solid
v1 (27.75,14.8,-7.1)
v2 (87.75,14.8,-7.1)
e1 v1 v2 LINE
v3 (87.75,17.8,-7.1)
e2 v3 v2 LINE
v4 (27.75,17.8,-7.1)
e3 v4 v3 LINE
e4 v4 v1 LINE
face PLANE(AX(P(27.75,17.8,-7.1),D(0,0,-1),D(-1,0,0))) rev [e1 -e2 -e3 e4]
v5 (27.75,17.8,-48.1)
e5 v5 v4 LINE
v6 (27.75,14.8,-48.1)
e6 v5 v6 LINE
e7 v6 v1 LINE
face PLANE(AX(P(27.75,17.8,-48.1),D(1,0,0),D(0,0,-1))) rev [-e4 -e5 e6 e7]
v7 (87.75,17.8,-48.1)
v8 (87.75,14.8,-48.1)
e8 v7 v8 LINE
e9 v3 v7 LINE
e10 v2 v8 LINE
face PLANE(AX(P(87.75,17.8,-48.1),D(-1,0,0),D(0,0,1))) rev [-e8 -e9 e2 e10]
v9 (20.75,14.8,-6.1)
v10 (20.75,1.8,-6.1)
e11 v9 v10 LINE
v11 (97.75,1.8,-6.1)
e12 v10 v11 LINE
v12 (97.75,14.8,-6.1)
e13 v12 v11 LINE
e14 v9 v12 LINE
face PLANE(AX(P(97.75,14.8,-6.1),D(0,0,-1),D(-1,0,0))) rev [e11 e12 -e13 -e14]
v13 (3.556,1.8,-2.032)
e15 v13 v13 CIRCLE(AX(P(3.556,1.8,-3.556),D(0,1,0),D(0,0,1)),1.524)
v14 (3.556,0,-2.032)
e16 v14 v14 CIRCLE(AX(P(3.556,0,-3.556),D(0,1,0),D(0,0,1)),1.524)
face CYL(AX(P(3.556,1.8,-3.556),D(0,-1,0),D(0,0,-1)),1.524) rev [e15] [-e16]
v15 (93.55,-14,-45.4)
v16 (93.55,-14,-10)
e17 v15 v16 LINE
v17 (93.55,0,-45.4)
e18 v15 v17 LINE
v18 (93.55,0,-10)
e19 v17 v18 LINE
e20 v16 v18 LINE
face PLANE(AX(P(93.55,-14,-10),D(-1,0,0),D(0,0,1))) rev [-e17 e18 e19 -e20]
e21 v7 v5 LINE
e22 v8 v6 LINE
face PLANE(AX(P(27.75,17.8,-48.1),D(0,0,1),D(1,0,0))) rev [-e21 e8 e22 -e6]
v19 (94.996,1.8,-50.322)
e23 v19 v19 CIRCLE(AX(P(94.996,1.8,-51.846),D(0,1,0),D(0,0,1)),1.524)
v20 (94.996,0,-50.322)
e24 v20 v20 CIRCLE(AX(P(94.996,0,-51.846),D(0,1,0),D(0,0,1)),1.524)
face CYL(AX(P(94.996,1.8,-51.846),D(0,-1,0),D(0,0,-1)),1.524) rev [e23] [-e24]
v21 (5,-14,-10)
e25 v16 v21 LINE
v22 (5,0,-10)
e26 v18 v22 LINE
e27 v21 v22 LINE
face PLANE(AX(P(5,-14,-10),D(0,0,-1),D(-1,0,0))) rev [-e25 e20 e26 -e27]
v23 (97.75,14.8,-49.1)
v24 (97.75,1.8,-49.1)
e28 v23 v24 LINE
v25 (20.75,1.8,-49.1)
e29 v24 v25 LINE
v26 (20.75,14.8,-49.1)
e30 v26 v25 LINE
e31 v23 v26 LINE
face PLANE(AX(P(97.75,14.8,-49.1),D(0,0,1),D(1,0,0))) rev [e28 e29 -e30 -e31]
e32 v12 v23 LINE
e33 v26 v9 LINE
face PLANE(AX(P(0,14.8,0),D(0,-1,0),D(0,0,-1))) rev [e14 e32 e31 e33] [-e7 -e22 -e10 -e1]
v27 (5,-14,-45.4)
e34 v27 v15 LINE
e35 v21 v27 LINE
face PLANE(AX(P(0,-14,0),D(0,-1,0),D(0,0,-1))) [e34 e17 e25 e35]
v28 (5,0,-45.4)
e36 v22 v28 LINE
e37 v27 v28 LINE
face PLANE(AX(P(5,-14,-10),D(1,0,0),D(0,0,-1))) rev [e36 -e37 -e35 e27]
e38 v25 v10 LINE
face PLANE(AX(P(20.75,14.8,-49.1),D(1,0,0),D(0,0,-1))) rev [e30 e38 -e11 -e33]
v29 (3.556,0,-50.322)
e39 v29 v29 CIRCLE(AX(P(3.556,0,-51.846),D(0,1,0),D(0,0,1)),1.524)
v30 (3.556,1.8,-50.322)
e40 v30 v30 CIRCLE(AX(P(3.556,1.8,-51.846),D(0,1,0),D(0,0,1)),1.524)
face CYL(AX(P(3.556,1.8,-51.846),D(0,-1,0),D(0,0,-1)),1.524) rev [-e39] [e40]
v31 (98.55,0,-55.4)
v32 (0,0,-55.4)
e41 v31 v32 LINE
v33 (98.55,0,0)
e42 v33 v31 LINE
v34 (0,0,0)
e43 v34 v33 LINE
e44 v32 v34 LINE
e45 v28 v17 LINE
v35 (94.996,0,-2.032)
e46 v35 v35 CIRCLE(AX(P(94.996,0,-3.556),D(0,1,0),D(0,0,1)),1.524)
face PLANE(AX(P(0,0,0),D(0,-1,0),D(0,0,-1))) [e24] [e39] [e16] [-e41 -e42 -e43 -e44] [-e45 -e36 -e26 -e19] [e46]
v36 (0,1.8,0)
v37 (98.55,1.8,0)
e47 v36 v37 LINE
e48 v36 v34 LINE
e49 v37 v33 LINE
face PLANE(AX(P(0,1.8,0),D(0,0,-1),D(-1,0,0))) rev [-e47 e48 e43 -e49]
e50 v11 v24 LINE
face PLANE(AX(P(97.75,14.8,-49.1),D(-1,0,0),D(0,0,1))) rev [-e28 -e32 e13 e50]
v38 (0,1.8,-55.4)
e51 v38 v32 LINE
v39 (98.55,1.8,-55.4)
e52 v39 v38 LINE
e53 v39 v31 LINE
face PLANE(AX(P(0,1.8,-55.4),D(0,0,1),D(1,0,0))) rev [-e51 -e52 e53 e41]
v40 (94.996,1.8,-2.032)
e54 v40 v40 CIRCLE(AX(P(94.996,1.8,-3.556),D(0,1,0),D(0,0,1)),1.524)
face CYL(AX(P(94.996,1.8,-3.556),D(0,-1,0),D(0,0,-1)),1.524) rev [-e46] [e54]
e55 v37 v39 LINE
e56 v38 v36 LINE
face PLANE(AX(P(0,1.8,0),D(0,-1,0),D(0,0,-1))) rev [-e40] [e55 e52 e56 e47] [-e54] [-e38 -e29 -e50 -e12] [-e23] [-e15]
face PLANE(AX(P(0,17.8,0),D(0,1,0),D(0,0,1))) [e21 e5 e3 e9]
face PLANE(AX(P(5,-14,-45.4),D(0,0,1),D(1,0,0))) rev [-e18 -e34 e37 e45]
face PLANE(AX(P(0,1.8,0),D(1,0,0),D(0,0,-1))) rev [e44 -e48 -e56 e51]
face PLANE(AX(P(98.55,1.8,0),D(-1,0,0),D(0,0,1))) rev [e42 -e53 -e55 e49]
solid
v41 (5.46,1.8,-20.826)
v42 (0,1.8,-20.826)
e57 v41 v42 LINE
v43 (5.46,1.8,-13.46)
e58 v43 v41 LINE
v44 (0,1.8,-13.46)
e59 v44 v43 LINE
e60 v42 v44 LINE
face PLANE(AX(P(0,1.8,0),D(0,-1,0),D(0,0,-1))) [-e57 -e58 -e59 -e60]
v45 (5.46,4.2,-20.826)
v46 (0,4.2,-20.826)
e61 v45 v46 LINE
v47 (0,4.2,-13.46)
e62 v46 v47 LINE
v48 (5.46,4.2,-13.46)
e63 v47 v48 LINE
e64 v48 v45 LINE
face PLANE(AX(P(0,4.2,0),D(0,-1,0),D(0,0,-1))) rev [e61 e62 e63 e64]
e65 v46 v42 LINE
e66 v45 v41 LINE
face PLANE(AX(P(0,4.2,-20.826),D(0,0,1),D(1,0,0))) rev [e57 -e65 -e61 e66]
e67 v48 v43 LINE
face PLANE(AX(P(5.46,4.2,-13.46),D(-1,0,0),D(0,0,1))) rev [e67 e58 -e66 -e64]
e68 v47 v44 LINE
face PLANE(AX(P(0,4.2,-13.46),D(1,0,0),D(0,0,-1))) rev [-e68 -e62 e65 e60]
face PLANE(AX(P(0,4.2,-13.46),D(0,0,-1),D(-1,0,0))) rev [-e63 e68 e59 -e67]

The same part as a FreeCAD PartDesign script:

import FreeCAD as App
import Part
import Sketcher


def add_polygon(sketch, points):
    """Adds a closed chain of lines whose ends are joined by coincident constraints."""
    first, n = sketch.GeometryCount, len(points)
    for a, b in zip(points, points[1:] + points[:1]):
        sketch.addGeometry(Part.LineSegment(App.Vector(*a, 0), App.Vector(*b, 0)), False)
    for i in range(n):
        sketch.addConstraint(Sketcher.Constraint("Coincident", first + i, 2, first + (i + 1) % n, 1))

doc = App.newDocument("Part")
body = doc.addObject("PartDesign::Body", "Body")

sketch1 = doc.addObject("Sketcher::SketchObject", "Sketch")
body.addObject(sketch1)
sketch1.AttachmentSupport = (doc.XZ_Plane, [""])
sketch1.MapMode = "FlatFace"
add_polygon(sketch1, [(0, -55.4), (0, 0), (98.5, 0), (98.5, -55.4)])
sketch1.addGeometry(Part.Circle(App.Vector(3.6, -3.6, 0), App.Vector(0, 0, 1), 1.5), False)
sketch1.addGeometry(Part.Circle(App.Vector(95, -3.6, 0), App.Vector(0, 0, 1), 1.5), False)
sketch1.addGeometry(Part.Circle(App.Vector(3.6, -51.8, 0), App.Vector(0, 0, 1), 1.5), False)
sketch1.addGeometry(Part.Circle(App.Vector(95, -51.8, 0), App.Vector(0, 0, 1), 1.5), False)
sketch1.addConstraint([
    Sketcher.Constraint("Vertical", 0),
    Sketcher.Constraint("Horizontal", 1),
    Sketcher.Constraint("Vertical", 2),
    Sketcher.Constraint("Horizontal", 3),
    Sketcher.Constraint("Coincident", 0, 2, -1, 1),
    Sketcher.Constraint("Equal", 4, 5),
    Sketcher.Constraint("Equal", 5, 6),
    Sketcher.Constraint("Equal", 6, 7),
    Sketcher.Constraint("Horizontal", 4, 3, 5, 3),
    Sketcher.Constraint("Horizontal", 6, 3, 7, 3),
    Sketcher.Constraint("Vertical", 4, 3, 6, 3),
    Sketcher.Constraint("Vertical", 5, 3, 7, 3),
    Sketcher.Constraint("Diameter", 4, 3.048),
    Sketcher.Constraint("DistanceY", 0, 1, 0, 2, 55.4),
    Sketcher.Constraint("DistanceX", 1, 1, 1, 2, 98.55),
    Sketcher.Constraint("DistanceX", 4, 3, 5, 3, 91.44),
    Sketcher.Constraint("DistanceY", 6, 3, 4, 3, 48.29),
    Sketcher.Constraint("DistanceX", -1, 1, 4, 3, 3.556),
    Sketcher.Constraint("DistanceY", 4, 3, -1, 1, 3.556),
])
pad1 = doc.addObject("PartDesign::Pad", "Pad")
body.addObject(pad1)
pad1.Profile = sketch1
pad1.Length = 1.8
pad1.Reversed = True

sketch2 = doc.addObject("Sketcher::SketchObject", "Sketch001")
body.addObject(sketch2)
sketch2.AttachmentSupport = (doc.XZ_Plane, [""])
sketch2.MapMode = "FlatFace"
sketch2.AttachmentOffset = App.Placement(App.Vector(0, 0, -1.8), App.Rotation())
add_polygon(sketch2, [(21, -49), (21, -6), (98, -6), (98, -49)])
sketch2.addConstraint([
    Sketcher.Constraint("Vertical", 0),
    Sketcher.Constraint("Horizontal", 1),
    Sketcher.Constraint("Vertical", 2),
    Sketcher.Constraint("Horizontal", 3),
    Sketcher.Constraint("DistanceX", 1, 1, 1, 2, 77.0),
    Sketcher.Constraint("DistanceY", 0, 1, 0, 2, 43.0),
    Sketcher.Constraint("DistanceY", 0, 2, -1, 1, 6.1),
    Sketcher.Constraint("DistanceX", -1, 1, 0, 2, 20.75),
])
pad2 = doc.addObject("PartDesign::Pad", "Pad001")
body.addObject(pad2)
pad2.Profile = sketch2
pad2.Length = 13
pad2.Reversed = True

sketch3 = doc.addObject("Sketcher::SketchObject", "Sketch002")
body.addObject(sketch3)
sketch3.AttachmentSupport = (doc.XZ_Plane, [""])
sketch3.MapMode = "FlatFace"
sketch3.AttachmentOffset = App.Placement(App.Vector(0, 0, -14.8), App.Rotation())
add_polygon(sketch3, [(28, -48), (28, -7), (88, -7), (88, -48)])
sketch3.addConstraint([
    Sketcher.Constraint("Vertical", 0),
    Sketcher.Constraint("Horizontal", 1),
    Sketcher.Constraint("Vertical", 2),
    Sketcher.Constraint("Horizontal", 3),
    Sketcher.Constraint("DistanceX", 1, 1, 1, 2, 60.0),
    Sketcher.Constraint("DistanceY", 0, 1, 0, 2, 41.0),
    Sketcher.Constraint("DistanceY", 0, 2, -1, 1, 7.1),
    Sketcher.Constraint("DistanceX", -1, 1, 0, 2, 27.75),
])
pad3 = doc.addObject("PartDesign::Pad", "Pad002")
body.addObject(pad3)
pad3.Profile = sketch3
pad3.Length = 3
pad3.Reversed = True

sketch4 = doc.addObject("Sketcher::SketchObject", "Sketch003")
body.addObject(sketch4)
sketch4.AttachmentSupport = (doc.XZ_Plane, [""])
sketch4.MapMode = "FlatFace"
add_polygon(sketch4, [(5, -10), (5, -45), (94, -45), (94, -10)])
sketch4.addConstraint([
    Sketcher.Constraint("Vertical", 0),
    Sketcher.Constraint("Horizontal", 1),
    Sketcher.Constraint("Vertical", 2),
    Sketcher.Constraint("Horizontal", 3),
    Sketcher.Constraint("DistanceY", 0, 2, 0, 1, 35.4),
    Sketcher.Constraint("DistanceX", -1, 1, 0, 2, 5.0),
    Sketcher.Constraint("DistanceY", 2, 2, -1, 1, 10.0),
    Sketcher.Constraint("DistanceX", 1, 1, 1, 2, 88.55),
])
pad4 = doc.addObject("PartDesign::Pad", "Pad003")
body.addObject(pad4)
pad4.Profile = sketch4
pad4.Length = 14
body2 = doc.addObject("PartDesign::Body", "Body001")

sketch5 = doc.addObject("Sketcher::SketchObject", "Sketch004")
body2.addObject(sketch5)
sketch5.AttachmentSupport = (doc.getObject("XZ_Plane001"), [""])
sketch5.MapMode = "FlatFace"
sketch5.AttachmentOffset = App.Placement(App.Vector(0, 0, -1.8), App.Rotation())
add_polygon(sketch5, [(0, -21), (0, -13), (5, -13), (5, -21)])
sketch5.addConstraint([
    Sketcher.Constraint("Vertical", 0),
    Sketcher.Constraint("Horizontal", 1),
    Sketcher.Constraint("Vertical", 2),
    Sketcher.Constraint("Horizontal", 3),
    Sketcher.Constraint("PointOnObject", 0, 2, -2),
    Sketcher.Constraint("DistanceX", 1, 1, 1, 2, 5.46),
    Sketcher.Constraint("DistanceY", 0, 1, 0, 2, 7.366),
    Sketcher.Constraint("DistanceY", 0, 2, -1, 1, 13.46),
])
pad5 = doc.addObject("PartDesign::Pad", "Pad004")
body2.addObject(pad5)
pad5.Profile = sketch5
pad5.Length = 2.4
pad5.Reversed = True

doc.recompute()
